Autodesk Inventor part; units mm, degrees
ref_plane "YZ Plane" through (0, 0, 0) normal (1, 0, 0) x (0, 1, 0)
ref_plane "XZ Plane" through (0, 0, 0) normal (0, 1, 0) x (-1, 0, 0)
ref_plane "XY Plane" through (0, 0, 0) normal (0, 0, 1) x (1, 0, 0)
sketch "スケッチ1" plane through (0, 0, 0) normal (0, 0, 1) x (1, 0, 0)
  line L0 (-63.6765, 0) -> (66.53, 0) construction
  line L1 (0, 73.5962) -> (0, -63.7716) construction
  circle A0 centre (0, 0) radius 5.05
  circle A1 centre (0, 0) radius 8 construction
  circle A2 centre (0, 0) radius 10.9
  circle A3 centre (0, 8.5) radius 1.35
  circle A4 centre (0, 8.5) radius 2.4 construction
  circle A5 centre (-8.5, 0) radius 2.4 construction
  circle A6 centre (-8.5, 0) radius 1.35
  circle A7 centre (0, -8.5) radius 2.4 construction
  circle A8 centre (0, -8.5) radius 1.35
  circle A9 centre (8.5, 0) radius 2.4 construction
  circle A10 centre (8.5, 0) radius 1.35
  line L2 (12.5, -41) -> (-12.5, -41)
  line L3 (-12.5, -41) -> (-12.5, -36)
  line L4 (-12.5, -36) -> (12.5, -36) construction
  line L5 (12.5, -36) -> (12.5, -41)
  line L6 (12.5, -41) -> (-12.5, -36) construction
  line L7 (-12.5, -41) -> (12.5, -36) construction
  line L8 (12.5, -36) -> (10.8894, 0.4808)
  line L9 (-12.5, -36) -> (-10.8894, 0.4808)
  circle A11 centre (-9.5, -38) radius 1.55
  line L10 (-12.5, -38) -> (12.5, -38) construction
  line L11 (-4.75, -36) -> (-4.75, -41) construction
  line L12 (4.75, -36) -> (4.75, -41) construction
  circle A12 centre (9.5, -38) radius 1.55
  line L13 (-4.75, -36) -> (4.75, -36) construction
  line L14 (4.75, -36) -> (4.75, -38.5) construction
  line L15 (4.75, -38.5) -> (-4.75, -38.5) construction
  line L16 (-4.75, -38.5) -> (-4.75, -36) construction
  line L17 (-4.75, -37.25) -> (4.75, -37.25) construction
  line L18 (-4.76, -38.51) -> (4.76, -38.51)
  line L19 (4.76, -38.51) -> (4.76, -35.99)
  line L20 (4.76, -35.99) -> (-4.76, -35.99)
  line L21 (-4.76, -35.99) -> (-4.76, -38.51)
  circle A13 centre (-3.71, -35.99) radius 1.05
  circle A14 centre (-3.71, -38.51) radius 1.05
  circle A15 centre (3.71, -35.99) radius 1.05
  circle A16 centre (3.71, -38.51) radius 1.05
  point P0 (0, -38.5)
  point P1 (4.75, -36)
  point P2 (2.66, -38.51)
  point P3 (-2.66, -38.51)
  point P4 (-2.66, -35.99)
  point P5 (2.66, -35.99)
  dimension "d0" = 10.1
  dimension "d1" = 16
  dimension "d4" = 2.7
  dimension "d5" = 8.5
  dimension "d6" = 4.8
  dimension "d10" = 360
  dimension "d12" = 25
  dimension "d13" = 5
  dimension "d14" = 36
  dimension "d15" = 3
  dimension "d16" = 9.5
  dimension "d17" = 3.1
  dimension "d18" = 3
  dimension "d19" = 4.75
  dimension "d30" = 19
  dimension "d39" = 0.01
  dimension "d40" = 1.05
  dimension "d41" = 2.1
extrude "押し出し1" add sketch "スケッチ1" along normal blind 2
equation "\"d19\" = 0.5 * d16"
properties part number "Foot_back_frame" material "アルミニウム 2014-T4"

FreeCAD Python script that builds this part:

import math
import FreeCAD as App
import Part
import Sketcher

V = App.Vector

doc = App.newDocument("Part")
body = doc.addObject("PartDesign::Body", "Body")

# Sketch on XY plane
sketch1 = body.newObject("Sketcher::SketchObject", "Sketch")
sketch1.AttachmentSupport = (doc.getObject("XY_Plane"), [""])
sketch1.MapMode = "FlatFace"
sketch1.addGeometry([
    Part.ArcOfCircle(Part.Circle(V(0, 0, 0), V(0, 0, 1), 10.9), math.radians(2.52814), math.radians(177.47186)),  # 0
    Part.LineSegment(V(-10.8894, 0.4808, 0), V(-12.5, -36, 0)),  # 1
    Part.LineSegment(V(-12.5, -36, 0), V(-12.5, -41, 0)),  # 2
    Part.LineSegment(V(-12.5, -41, 0), V(12.5, -41, 0)),  # 3
    Part.LineSegment(V(12.5, -41, 0), V(12.5, -36, 0)),  # 4
    Part.LineSegment(V(12.5, -36, 0), V(10.8894, 0.4808, 0)),  # 5
    Part.Circle(V(-8.5, 0, 0), V(0, 0, 1), 1.35),  # 6
    Part.Circle(V(0, -8.5, 0), V(0, 0, 1), 1.35),  # 7
    Part.Circle(V(0, 0, 0), V(0, 0, 1), 5.05),  # 8
    Part.Circle(V(0, 8.5, 0), V(0, 0, 1), 1.35),  # 9
    Part.Circle(V(8.5, 0, 0), V(0, 0, 1), 1.35),  # 10
    Part.LineSegment(V(-4.76, -38.51, 0), V(-4.76, -35.99, 0)),  # 11
    Part.ArcOfCircle(Part.Circle(V(-3.71, -35.99, 0), V(0, 0, 1), 1.05), math.radians(0), math.radians(180)),  # 12
    Part.LineSegment(V(-2.66, -35.99, 0), V(2.66, -35.99, 0)),  # 13
    Part.ArcOfCircle(Part.Circle(V(3.71, -35.99, 0), V(0, 0, 1), 1.05), math.radians(0), math.radians(180)),  # 14
    Part.LineSegment(V(4.76, -35.99, 0), V(4.76, -38.51, 0)),  # 15
    Part.ArcOfCircle(Part.Circle(V(3.71, -38.51, 0), V(0, 0, 1), 1.05), math.radians(180), math.radians(360)),  # 16
    Part.LineSegment(V(2.66, -38.51, 0), V(-2.66, -38.51, 0)),  # 17
    Part.ArcOfCircle(Part.Circle(V(-3.71, -38.51, 0), V(0, 0, 1), 1.05), math.radians(180), math.radians(360)),  # 18
    Part.Circle(V(9.5, -38, 0), V(0, 0, 1), 1.55),  # 19
    Part.Circle(V(-9.5, -38, 0), V(0, 0, 1), 1.55),  # 20
], False)
sketch1.addConstraint([
    Sketcher.Constraint("Tangent", 0, 2, 1, 1),
    Sketcher.Constraint("Coincident", 1, 2, 2, 1),
    Sketcher.Constraint("Coincident", 2, 2, 3, 1),
    Sketcher.Constraint("Coincident", 3, 2, 4, 1),
    Sketcher.Constraint("Coincident", 4, 2, 5, 1),
    Sketcher.Constraint("Tangent", 5, 2, 0, 1),
    Sketcher.Constraint("Tangent", 11, 2, 12, 2),
    Sketcher.Constraint("Coincident", 12, 1, 13, 1),
    Sketcher.Constraint("Coincident", 13, 2, 14, 2),
    Sketcher.Constraint("Tangent", 14, 1, 15, 1),
    Sketcher.Constraint("Tangent", 15, 2, 16, 2),
    Sketcher.Constraint("Coincident", 16, 1, 17, 1),
    Sketcher.Constraint("Coincident", 17, 2, 18, 2),
    Sketcher.Constraint("Tangent", 18, 1, 11, 1),
    Sketcher.Constraint("Vertical", 2),
    Sketcher.Constraint("Horizontal", 3),
    Sketcher.Constraint("Vertical", 4),
    Sketcher.Constraint("Vertical", 11),
    Sketcher.Constraint("Horizontal", 13),
    Sketcher.Constraint("Vertical", 15),
    Sketcher.Constraint("Horizontal", 17),
    Sketcher.Constraint("Coincident", 0, 3, -1, 1),
    Sketcher.Constraint("Coincident", 8, 3, -1, 1),
    Sketcher.Constraint("Equal", 6, 7),
    Sketcher.Constraint("Equal", 7, 9),
    Sketcher.Constraint("Equal", 9, 10),
    Sketcher.Constraint("Equal", 12, 14),
    Sketcher.Constraint("Equal", 14, 16),
    Sketcher.Constraint("Equal", 16, 18),
    Sketcher.Constraint("Equal", 19, 20),
    Sketcher.Constraint("Symmetric", 7, 3, 9, 3, -1, 1),
    Sketcher.Constraint("Symmetric", 6, 3, 10, 3, -1, 1),
    Sketcher.Constraint("Symmetric", 12, 3, 14, 3, -2),
    Sketcher.Constraint("Symmetric", 19, 3, 20, 3, -2),
    Sketcher.Constraint("Symmetric", 1, 2, 4, 2, -2),
    Sketcher.Constraint("PointOnObject", 6, 3, -1),
    Sketcher.Constraint("PointOnObject", 7, 3, -2),
    Sketcher.Constraint("Horizontal", 16, 3, 18, 3),
    Sketcher.Constraint("Horizontal", 11, 2, 12, 1),
    Sketcher.Constraint("Horizontal", 15, 2, 16, 1),
    Sketcher.Constraint("Diameter", 6, 2.7),
    Sketcher.Constraint("Diameter", 8, 10.1),
    Sketcher.Constraint("Diameter", 19, 3.1),
    Sketcher.Constraint("DistanceX", 3, 1, 3, 2, 25.0),
    Sketcher.Constraint("DistanceY", 2, 2, 2, 1, 5.0),
    Sketcher.Constraint("Radius", 12, 1.05),
    Sketcher.Constraint("DistanceY", 1, 2, -1, 1, 36.0),
    Sketcher.Constraint("DistanceX", 20, 3, 19, 3, 19.0),
    Sketcher.Constraint("DistanceY", 2, 2, 20, 3, 3.0),
    Sketcher.Constraint("DistanceX", 6, 3, -1, 1, 8.5),
    Sketcher.Constraint("DistanceY", 7, 3, -1, 1, 8.5),
    Sketcher.Constraint("Radius", 0, 10.9),
    Sketcher.Constraint("DistanceY", 1, 2, 12, 3, 0.01),
    Sketcher.Constraint("DistanceX", 13, 1, 13, 2, 5.32),
    Sketcher.Constraint("DistanceY", 11, 1, 11, 2, 2.52),
])
pad1 = body.newObject("PartDesign::Pad", "Pad")
pad1.Profile = sketch1
pad1.Length = 2

doc.recompute()
